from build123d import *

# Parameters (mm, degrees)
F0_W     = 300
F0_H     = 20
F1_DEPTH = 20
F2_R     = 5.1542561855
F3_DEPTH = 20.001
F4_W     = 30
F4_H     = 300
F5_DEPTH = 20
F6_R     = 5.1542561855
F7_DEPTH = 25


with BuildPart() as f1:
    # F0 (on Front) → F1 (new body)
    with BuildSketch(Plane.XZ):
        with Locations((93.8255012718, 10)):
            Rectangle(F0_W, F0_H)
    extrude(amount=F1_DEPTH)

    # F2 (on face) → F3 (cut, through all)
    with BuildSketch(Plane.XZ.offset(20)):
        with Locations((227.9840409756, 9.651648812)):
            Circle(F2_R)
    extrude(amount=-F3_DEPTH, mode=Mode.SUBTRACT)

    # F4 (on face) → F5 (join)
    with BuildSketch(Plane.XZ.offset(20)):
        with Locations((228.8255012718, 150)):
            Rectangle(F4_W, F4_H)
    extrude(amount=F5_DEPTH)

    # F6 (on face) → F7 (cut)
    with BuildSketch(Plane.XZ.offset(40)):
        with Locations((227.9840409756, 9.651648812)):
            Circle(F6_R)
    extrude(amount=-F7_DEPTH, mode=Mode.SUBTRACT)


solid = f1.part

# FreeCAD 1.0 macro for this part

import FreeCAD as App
import Part
import Sketcher
from FreeCAD import Vector
Q = App.Units.Quantity

doc = App.newDocument("Part")
body = doc.addObject("PartDesign::Body", "Body")

# Sketch on XZ plane
sketch1 = body.newObject("Sketcher::SketchObject", "Sketch")
sketch1.AttachmentSupport = (doc.getObject("XZ_Plane"), [""])
sketch1.MapMode = "FlatFace"
sketch1.addGeometry(Part.LineSegment(Vector(-56.174499, 20, 0), Vector(-56.174499, 0, 0)), False)
sketch1.addGeometry(Part.LineSegment(Vector(-56.174499, 0, 0), Vector(243.825501, 0, 0)), False)
sketch1.addGeometry(Part.LineSegment(Vector(243.825501, 0, 0), Vector(243.825501, 20, 0)), False)
sketch1.addGeometry(Part.LineSegment(Vector(243.825501, 20, 0), Vector(-56.174499, 20, 0)), False)
sketch1.addConstraint(Sketcher.Constraint("Coincident", 0, 2, 1, 1))
sketch1.addConstraint(Sketcher.Constraint("Coincident", 1, 2, 2, 1))
sketch1.addConstraint(Sketcher.Constraint("Coincident", 2, 2, 3, 1))
sketch1.addConstraint(Sketcher.Constraint("Coincident", 3, 2, 0, 1))
sketch1.addConstraint(Sketcher.Constraint("Vertical", 0))
sketch1.addConstraint(Sketcher.Constraint("Horizontal", 1))
sketch1.addConstraint(Sketcher.Constraint("Vertical", 2))
sketch1.addConstraint(Sketcher.Constraint("Horizontal", 3))
sketch1.addConstraint(Sketcher.Constraint("PointOnObject", 0, 2, -1))
sketch1.addConstraint(Sketcher.Constraint("DistanceX", 1, 1, 1, 2, Q("300 mm")))
sketch1.addConstraint(Sketcher.Constraint("DistanceY", 0, 2, 0, 1, Q("20 mm")))
sketch1.addConstraint(Sketcher.Constraint("DistanceX", 0, 2, -1, 1, Q("56.174499 mm")))
pad1 = body.newObject("PartDesign::Pad", "Pad")
pad1.Profile = sketch1
pad1.Length = 20

# Sketch on XZ plane
sketch2 = body.newObject("Sketcher::SketchObject", "Sketch001")
sketch2.AttachmentSupport = (doc.getObject("XZ_Plane"), [""])
sketch2.MapMode = "FlatFace"
sketch2.AttachmentOffset = App.Placement(Vector(0, 0, 20), App.Rotation())
sketch2.addGeometry(Part.Circle(Vector(227.984041, 9.651649, 0), Vector(0, 0, 1), 5.154256), False)
sketch2.addConstraint(Sketcher.Constraint("Diameter", 0, Q("10.308512 mm")))
sketch2.addConstraint(Sketcher.Constraint("DistanceX", -1, 1, 0, 3, Q("227.984041 mm")))
sketch2.addConstraint(Sketcher.Constraint("DistanceY", -1, 1, 0, 3, Q("9.651649 mm")))
pocket1 = body.newObject("PartDesign::Pocket", "Pocket")
pocket1.Profile = sketch2
pocket1.Type = "ThroughAll"

# Sketch on XZ plane
sketch3 = body.newObject("Sketcher::SketchObject", "Sketch002")
sketch3.AttachmentSupport = (doc.getObject("XZ_Plane"), [""])
sketch3.MapMode = "FlatFace"
sketch3.AttachmentOffset = App.Placement(Vector(0, 0, 20), App.Rotation())
sketch3.addGeometry(Part.LineSegment(Vector(213.825501, 300, 0), Vector(213.825501, 0, 0)), False)
sketch3.addGeometry(Part.LineSegment(Vector(213.825501, 0, 0), Vector(243.825501, 0, 0)), False)
sketch3.addGeometry(Part.LineSegment(Vector(243.825501, 0, 0), Vector(243.825501, 300, 0)), False)
sketch3.addGeometry(Part.LineSegment(Vector(243.825501, 300, 0), Vector(213.825501, 300, 0)), False)
sketch3.addConstraint(Sketcher.Constraint("Coincident", 0, 2, 1, 1))
sketch3.addConstraint(Sketcher.Constraint("Coincident", 1, 2, 2, 1))
sketch3.addConstraint(Sketcher.Constraint("Coincident", 2, 2, 3, 1))
sketch3.addConstraint(Sketcher.Constraint("Coincident", 3, 2, 0, 1))
sketch3.addConstraint(Sketcher.Constraint("Vertical", 0))
sketch3.addConstraint(Sketcher.Constraint("Horizontal", 1))
sketch3.addConstraint(Sketcher.Constraint("Vertical", 2))
sketch3.addConstraint(Sketcher.Constraint("Horizontal", 3))
sketch3.addConstraint(Sketcher.Constraint("PointOnObject", 0, 2, -1))
sketch3.addConstraint(Sketcher.Constraint("DistanceX", 1, 1, 1, 2, Q("30 mm")))
sketch3.addConstraint(Sketcher.Constraint("DistanceY", 0, 2, 0, 1, Q("300 mm")))
sketch3.addConstraint(Sketcher.Constraint("DistanceX", -1, 1, 0, 2, Q("213.825501 mm")))
pad2 = body.newObject("PartDesign::Pad", "Pad001")
pad2.Profile = sketch3
pad2.Length = 20

# Sketch on XZ plane
sketch4 = body.newObject("Sketcher::SketchObject", "Sketch003")
sketch4.AttachmentSupport = (doc.getObject("XZ_Plane"), [""])
sketch4.MapMode = "FlatFace"
sketch4.AttachmentOffset = App.Placement(Vector(0, 0, 40), App.Rotation())
sketch4.addGeometry(Part.Circle(Vector(227.984041, 9.651649, 0), Vector(0, 0, 1), 5.154256), False)
sketch4.addConstraint(Sketcher.Constraint("Diameter", 0, Q("10.308512 mm")))
sketch4.addConstraint(Sketcher.Constraint("DistanceX", -1, 1, 0, 3, Q("227.984041 mm")))
sketch4.addConstraint(Sketcher.Constraint("DistanceY", -1, 1, 0, 3, Q("9.651649 mm")))
pocket2 = body.newObject("PartDesign::Pocket", "Pocket001")
pocket2.Profile = sketch4
pocket2.Length = 25

doc.recompute()
